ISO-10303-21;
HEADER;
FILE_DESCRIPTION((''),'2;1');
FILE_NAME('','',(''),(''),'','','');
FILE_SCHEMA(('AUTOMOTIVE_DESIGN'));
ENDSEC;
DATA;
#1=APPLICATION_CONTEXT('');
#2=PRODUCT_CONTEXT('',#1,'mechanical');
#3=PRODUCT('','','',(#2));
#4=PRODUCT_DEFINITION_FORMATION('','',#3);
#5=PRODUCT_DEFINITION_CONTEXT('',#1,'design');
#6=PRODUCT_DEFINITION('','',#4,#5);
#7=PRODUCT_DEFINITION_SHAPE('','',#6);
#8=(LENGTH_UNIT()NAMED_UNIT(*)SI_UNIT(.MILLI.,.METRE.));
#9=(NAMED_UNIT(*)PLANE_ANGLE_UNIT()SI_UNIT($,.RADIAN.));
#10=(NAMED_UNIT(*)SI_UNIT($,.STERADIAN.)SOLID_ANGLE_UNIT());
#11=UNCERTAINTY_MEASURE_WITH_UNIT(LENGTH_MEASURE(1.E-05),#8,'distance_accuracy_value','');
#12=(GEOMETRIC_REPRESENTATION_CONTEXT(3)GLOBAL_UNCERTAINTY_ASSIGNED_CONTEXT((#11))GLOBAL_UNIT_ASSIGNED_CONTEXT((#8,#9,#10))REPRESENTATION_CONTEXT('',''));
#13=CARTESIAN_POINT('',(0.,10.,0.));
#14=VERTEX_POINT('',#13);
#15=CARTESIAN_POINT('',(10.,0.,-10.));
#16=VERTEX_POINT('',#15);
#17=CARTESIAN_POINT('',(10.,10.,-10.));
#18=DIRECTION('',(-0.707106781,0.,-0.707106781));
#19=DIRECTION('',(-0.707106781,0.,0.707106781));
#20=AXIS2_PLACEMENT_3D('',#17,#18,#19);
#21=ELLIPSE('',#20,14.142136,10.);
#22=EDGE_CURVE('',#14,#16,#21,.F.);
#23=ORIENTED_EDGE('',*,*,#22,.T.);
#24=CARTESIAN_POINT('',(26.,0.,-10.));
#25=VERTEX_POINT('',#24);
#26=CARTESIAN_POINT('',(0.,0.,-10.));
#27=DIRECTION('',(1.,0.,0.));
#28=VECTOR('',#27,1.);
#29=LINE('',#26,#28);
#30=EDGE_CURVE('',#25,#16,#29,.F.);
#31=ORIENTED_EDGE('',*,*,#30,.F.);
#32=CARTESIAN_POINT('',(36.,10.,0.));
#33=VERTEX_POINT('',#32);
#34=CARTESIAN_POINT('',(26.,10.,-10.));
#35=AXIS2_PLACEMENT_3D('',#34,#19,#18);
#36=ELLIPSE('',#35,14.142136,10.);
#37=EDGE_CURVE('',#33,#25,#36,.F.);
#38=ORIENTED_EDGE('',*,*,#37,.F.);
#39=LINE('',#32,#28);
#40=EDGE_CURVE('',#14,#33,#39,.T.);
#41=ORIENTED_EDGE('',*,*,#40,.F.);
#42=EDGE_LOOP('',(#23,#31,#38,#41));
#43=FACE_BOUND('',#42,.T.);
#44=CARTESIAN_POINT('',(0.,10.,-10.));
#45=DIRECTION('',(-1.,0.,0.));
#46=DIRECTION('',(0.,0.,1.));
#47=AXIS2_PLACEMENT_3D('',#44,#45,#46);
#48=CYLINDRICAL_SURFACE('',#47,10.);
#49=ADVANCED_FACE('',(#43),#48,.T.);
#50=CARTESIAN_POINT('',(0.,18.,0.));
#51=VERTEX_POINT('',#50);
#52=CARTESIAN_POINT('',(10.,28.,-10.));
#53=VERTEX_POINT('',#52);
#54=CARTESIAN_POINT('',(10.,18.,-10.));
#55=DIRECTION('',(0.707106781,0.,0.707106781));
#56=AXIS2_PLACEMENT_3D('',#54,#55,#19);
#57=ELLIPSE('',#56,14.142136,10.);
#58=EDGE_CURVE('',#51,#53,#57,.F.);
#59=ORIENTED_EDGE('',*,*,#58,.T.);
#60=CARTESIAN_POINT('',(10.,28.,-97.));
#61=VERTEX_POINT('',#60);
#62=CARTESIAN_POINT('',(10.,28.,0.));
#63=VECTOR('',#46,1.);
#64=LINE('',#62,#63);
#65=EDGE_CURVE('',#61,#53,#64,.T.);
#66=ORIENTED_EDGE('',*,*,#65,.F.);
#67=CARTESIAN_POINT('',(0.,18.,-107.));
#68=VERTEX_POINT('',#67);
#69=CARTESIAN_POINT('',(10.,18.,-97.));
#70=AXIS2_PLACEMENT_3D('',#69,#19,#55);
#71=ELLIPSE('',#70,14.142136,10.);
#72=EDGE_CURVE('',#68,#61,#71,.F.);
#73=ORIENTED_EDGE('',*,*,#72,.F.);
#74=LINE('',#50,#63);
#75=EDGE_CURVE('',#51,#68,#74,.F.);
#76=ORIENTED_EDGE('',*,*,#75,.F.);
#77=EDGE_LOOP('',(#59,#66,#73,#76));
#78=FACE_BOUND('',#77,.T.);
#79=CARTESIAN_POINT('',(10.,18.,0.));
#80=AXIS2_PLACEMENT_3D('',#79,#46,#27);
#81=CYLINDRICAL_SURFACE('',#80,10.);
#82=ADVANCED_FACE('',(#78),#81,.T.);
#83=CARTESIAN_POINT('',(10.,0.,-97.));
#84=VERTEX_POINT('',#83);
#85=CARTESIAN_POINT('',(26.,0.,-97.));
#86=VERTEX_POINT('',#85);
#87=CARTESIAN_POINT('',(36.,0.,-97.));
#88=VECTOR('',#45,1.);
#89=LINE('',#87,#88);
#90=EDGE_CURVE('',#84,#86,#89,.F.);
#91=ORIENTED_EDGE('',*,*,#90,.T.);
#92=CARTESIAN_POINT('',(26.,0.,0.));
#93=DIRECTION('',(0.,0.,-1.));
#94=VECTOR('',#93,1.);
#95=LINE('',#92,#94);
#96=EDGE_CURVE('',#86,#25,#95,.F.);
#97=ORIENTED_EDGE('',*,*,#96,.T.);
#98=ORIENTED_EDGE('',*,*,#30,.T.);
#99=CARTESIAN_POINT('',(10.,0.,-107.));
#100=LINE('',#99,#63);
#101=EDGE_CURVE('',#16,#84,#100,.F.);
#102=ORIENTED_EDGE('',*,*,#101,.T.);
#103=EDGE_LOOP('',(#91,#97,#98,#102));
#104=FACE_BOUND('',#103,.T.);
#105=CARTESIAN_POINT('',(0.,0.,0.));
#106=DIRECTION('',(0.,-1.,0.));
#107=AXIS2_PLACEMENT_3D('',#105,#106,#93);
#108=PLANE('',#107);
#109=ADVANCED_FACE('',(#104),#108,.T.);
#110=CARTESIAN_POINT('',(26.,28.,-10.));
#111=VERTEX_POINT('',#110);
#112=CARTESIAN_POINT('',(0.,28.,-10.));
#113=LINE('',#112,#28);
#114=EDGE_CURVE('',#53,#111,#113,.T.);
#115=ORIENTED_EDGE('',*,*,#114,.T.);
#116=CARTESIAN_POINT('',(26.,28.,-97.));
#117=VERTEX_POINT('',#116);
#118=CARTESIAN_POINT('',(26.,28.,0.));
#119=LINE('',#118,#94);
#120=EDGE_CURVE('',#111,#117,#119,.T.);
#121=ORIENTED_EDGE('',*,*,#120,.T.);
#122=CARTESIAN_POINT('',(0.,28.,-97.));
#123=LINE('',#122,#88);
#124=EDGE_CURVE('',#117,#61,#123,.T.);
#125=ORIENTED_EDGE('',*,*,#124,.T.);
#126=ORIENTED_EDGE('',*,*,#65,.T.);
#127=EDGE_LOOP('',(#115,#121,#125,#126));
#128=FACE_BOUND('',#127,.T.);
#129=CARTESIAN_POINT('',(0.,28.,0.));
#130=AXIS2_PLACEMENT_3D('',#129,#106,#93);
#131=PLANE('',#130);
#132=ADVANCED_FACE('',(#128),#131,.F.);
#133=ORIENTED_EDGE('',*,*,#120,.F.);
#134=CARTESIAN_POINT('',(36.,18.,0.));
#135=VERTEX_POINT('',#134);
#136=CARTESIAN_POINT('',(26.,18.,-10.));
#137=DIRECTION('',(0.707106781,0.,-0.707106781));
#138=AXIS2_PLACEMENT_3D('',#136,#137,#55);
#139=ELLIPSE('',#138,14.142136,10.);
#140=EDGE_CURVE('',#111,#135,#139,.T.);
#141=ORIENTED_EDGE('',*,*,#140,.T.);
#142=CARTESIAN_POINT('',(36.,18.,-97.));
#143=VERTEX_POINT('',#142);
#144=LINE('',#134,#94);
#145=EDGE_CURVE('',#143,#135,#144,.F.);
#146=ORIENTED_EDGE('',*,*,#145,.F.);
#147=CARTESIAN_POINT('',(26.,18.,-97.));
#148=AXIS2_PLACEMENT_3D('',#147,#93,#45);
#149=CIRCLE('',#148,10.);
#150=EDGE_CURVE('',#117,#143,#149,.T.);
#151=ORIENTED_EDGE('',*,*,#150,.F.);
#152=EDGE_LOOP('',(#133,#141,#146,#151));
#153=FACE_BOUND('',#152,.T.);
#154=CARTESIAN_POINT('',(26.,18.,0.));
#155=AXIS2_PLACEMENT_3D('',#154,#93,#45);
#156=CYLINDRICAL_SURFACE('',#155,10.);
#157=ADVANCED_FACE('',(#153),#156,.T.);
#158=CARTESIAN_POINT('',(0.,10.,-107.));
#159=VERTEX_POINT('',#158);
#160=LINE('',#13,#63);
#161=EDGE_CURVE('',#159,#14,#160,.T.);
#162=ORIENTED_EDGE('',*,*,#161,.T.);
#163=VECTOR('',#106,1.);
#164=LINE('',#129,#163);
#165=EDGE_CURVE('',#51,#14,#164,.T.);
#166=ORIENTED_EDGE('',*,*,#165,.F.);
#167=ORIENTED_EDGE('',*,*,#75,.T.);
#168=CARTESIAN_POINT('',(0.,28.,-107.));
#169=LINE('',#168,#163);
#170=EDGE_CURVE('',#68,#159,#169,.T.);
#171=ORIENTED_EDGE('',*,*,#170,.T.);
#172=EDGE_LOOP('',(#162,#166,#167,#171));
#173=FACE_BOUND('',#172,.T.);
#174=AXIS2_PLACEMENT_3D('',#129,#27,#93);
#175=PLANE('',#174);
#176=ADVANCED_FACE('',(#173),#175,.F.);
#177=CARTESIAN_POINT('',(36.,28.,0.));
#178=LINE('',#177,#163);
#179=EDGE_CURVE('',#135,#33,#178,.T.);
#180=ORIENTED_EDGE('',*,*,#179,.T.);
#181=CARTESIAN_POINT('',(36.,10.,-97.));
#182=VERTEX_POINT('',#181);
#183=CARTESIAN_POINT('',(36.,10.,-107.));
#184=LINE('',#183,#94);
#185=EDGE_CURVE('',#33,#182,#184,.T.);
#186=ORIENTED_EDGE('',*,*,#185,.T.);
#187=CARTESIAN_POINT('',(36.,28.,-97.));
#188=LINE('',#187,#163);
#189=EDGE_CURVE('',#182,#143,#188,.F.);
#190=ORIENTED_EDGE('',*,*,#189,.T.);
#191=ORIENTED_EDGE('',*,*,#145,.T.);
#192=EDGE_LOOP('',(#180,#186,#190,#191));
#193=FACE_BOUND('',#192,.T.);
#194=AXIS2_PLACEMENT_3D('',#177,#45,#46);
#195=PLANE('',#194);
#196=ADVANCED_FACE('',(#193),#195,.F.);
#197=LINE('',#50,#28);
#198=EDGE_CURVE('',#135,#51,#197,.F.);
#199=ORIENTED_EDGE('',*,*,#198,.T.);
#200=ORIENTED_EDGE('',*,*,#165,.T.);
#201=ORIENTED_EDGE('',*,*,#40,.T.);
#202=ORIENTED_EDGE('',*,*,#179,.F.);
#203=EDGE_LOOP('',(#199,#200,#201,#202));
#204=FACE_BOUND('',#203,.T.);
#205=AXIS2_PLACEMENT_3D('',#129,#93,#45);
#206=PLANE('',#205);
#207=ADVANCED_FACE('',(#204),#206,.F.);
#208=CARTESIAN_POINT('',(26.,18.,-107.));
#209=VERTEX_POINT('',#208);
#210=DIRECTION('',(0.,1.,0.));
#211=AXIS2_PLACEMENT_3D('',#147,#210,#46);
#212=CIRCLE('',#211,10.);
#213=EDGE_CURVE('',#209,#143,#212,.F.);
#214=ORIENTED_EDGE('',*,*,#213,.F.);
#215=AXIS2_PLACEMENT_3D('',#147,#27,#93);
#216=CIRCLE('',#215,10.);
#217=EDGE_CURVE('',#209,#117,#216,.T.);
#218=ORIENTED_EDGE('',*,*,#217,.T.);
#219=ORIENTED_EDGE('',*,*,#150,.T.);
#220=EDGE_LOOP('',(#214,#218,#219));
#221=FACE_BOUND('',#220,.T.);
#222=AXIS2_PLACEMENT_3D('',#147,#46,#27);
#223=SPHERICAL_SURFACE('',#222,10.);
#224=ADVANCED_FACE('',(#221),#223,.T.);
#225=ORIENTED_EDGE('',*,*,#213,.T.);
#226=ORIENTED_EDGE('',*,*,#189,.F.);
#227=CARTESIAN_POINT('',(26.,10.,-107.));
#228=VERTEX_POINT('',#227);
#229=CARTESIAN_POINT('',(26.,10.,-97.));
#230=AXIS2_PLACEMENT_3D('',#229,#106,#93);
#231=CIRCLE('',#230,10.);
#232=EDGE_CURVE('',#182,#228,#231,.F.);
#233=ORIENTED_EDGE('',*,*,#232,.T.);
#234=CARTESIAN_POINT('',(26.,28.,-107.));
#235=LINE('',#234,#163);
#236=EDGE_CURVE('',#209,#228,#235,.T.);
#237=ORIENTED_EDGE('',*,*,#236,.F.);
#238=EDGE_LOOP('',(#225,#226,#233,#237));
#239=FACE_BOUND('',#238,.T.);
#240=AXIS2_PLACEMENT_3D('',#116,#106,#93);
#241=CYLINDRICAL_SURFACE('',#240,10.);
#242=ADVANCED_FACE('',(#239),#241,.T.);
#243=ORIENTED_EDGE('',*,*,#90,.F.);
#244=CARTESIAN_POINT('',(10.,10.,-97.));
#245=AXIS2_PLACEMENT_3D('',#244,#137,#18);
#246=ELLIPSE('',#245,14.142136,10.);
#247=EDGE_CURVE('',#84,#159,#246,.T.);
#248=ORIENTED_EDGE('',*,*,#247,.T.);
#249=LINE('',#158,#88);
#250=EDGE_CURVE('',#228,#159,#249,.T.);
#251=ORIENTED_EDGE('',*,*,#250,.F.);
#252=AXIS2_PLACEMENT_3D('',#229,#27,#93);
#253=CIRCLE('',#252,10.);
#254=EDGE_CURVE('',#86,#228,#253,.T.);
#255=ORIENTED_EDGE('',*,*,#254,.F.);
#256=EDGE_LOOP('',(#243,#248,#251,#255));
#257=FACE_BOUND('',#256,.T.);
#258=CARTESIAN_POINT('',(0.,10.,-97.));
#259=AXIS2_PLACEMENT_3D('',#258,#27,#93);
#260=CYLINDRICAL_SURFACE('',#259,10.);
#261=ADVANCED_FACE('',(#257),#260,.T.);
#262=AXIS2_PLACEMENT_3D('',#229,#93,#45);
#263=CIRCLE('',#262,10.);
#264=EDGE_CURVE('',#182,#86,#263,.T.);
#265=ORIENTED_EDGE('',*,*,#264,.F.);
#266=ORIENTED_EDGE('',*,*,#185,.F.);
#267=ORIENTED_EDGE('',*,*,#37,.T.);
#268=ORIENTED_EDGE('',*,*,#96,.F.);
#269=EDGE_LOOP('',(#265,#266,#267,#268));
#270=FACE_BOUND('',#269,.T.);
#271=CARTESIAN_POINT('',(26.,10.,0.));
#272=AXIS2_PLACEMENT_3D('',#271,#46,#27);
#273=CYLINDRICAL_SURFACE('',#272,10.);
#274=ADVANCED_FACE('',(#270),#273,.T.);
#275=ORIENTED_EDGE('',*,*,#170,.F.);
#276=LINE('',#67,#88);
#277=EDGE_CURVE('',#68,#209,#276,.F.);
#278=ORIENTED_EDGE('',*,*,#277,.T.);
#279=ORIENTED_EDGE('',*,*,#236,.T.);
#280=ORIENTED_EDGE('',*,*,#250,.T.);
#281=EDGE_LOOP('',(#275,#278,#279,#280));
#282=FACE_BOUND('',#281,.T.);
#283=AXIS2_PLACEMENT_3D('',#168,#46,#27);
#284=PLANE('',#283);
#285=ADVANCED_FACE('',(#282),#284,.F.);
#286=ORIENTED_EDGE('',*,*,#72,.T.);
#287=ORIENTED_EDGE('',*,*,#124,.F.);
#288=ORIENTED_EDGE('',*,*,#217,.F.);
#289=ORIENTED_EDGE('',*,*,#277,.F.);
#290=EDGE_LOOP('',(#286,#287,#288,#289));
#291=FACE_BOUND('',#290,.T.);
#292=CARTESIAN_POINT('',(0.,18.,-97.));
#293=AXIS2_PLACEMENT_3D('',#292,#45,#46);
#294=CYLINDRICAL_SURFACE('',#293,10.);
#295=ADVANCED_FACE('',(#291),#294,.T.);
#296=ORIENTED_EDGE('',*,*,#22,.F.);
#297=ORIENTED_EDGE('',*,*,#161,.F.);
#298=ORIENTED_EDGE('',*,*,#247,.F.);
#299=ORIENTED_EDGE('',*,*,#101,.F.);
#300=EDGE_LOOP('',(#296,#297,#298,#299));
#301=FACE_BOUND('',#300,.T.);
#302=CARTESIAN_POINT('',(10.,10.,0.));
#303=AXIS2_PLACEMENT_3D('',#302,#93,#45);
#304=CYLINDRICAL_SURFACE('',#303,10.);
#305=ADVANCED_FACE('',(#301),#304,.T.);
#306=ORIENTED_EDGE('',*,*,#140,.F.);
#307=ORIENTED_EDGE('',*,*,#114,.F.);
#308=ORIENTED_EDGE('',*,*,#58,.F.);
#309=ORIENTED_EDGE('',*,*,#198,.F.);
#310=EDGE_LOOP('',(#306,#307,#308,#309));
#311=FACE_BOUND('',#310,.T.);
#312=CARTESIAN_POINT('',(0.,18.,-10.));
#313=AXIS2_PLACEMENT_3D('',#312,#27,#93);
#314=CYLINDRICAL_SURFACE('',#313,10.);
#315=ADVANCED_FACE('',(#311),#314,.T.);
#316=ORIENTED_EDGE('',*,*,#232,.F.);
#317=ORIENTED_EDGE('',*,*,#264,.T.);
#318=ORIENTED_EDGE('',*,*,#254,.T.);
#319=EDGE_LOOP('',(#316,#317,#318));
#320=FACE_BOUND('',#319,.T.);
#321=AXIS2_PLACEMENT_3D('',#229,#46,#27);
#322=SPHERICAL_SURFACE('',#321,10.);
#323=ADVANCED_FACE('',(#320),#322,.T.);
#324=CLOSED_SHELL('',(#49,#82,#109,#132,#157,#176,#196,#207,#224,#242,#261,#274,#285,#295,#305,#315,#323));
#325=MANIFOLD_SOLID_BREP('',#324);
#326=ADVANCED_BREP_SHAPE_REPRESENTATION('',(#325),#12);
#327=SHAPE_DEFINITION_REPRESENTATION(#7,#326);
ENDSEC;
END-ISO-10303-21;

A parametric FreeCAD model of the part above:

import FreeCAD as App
import Part
import Sketcher
from FreeCAD import Vector


def edges_at(feature, points):
    """Names of the edges that pass closest to the given points."""
    edges = feature.Shape.Edges
    near = lambda p: min(range(len(edges)), key=lambda i: edges[i].distToShape(Part.Vertex(*p))[0])
    return sorted({f"Edge{near(p) + 1}" for p in points})

doc = App.newDocument("Part")
params = doc.addObject("Spreadsheet::Sheet", "Params")
for row, (alias, value) in enumerate([
    ("sketch1_width", "36 mm"),
    ("sketch1_height", "107 mm"),
    ("pad1_length", "28 mm"),
    ("fillet_radius", "10 mm"),
], start=1):
    params.set(f"A{row}", alias)
    params.set(f"B{row}", "=" + value)
    params.setAlias(f"B{row}", alias)

body = doc.addObject("PartDesign::Body", "Body")

# Sketch on XZ plane
sketch1 = body.newObject("Sketcher::SketchObject", "Sketch")
sketch1.AttachmentSupport = (doc.getObject("XZ_Plane"), [""])
sketch1.MapMode = "FlatFace"
sketch1.addGeometry([
    Part.LineSegment(Vector(0, -107, 0), Vector(0, 0, 0)),
    Part.LineSegment(Vector(0, 0, 0), Vector(36, 0, 0)),
    Part.LineSegment(Vector(36, 0, 0), Vector(36, -107, 0)),
    Part.LineSegment(Vector(36, -107, 0), Vector(0, -107, 0)),
], False)
sketch1.addConstraint([
    Sketcher.Constraint("Coincident", 0, 2, 1, 1),
    Sketcher.Constraint("Coincident", 1, 2, 2, 1),
    Sketcher.Constraint("Coincident", 2, 2, 3, 1),
    Sketcher.Constraint("Coincident", 3, 2, 0, 1),
    Sketcher.Constraint("Vertical", 0),
    Sketcher.Constraint("Horizontal", 1),
    Sketcher.Constraint("Vertical", 2),
    Sketcher.Constraint("Horizontal", 3),
    Sketcher.Constraint("Coincident", 0, 2, -1, 1),
    Sketcher.Constraint("DistanceX", 1, 1, 1, 2, 36.0),
    Sketcher.Constraint("DistanceY", 0, 1, 0, 2, 107.0),
])
sketch1.setExpression("Constraints[9]", "Params.sketch1_width")
sketch1.setExpression("Constraints[10]", "Params.sketch1_height")
pad1 = body.newObject("PartDesign::Pad", "Pad")
pad1.Profile = sketch1
pad1.setExpression("Length", "Params.pad1_length")
pad1.Reversed = True
doc.recompute()

fillet = body.newObject("PartDesign::Fillet", "Fillet")
fillet.Base = (pad1, edges_at(pad1, [
    (36, 28, -53.5),
    (18, 28, -107),
    (0, 28, -53.5),
    (18, 0, -107),
    (36, 0, -53.5),
    (18, 0, 0),
    (0, 0, -53.5),
    (18, 28, 0),
    (36, 14, -107),
]))
fillet.setExpression("Radius", "Params.fillet_radius")

doc.recompute()
